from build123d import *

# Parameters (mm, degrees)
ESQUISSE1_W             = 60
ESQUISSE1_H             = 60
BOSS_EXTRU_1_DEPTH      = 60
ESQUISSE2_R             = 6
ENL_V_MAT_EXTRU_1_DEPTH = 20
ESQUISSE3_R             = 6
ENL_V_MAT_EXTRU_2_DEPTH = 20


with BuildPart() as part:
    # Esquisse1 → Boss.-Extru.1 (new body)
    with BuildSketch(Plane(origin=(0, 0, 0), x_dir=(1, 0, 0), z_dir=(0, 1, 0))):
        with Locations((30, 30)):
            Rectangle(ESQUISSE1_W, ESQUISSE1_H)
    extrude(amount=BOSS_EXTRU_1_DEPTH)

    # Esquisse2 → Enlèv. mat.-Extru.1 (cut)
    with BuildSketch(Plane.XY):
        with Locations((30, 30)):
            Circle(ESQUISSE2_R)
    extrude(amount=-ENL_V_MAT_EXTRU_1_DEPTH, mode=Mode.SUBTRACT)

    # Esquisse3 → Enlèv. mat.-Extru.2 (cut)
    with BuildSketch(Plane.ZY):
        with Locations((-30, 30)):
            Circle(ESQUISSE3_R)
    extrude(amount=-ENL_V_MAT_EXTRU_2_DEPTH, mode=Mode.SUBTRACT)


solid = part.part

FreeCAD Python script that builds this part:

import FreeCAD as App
import Part
import Sketcher
from FreeCAD import Vector

doc = App.newDocument("Part")
body = doc.addObject("PartDesign::Body", "Body")

sketch1 = body.newObject("Sketcher::SketchObject", "Sketch")
sketch1.AttachmentSupport = (doc.getObject("XZ_Plane"), [""])
sketch1.MapMode = "FlatFace"
sketch1.addGeometry([
    Part.LineSegment(Vector(0, -60, 0), Vector(0, 0, 0)),
    Part.LineSegment(Vector(0, 0, 0), Vector(60, 0, 0)),
    Part.LineSegment(Vector(60, 0, 0), Vector(60, -60, 0)),
    Part.LineSegment(Vector(60, -60, 0), Vector(0, -60, 0)),
], False)
sketch1.addConstraint([
    Sketcher.Constraint("Coincident", 0, 2, 1, 1),
    Sketcher.Constraint("Coincident", 1, 2, 2, 1),
    Sketcher.Constraint("Coincident", 2, 2, 3, 1),
    Sketcher.Constraint("Coincident", 3, 2, 0, 1),
    Sketcher.Constraint("Vertical", 0),
    Sketcher.Constraint("Horizontal", 1),
    Sketcher.Constraint("Vertical", 2),
    Sketcher.Constraint("Horizontal", 3),
    Sketcher.Constraint("Coincident", 0, 2, -1, 1),
    Sketcher.Constraint("Equal", 3, 0),
    Sketcher.Constraint("DistanceX", 1, 1, 1, 2, 60.0),
])
pad1 = body.newObject("PartDesign::Pad", "Pad")
pad1.Profile = sketch1
pad1.Length = 60
pad1.Reversed = True

sketch2 = body.newObject("Sketcher::SketchObject", "Sketch001")
sketch2.AttachmentSupport = (doc.getObject("XY_Plane"), [""])
sketch2.MapMode = "FlatFace"
sketch2.addGeometry(Part.Circle(Vector(30, 30, 0), Vector(0, 0, 1), 6), False)
sketch2.addConstraint([
    Sketcher.Constraint("Diameter", 0, 12.0),
    Sketcher.Constraint("DistanceX", -1, 1, 0, 3, 30.0),
    Sketcher.Constraint("DistanceY", -1, 1, 0, 3, 30.0),
])
pocket1 = body.newObject("PartDesign::Pocket", "Pocket")
pocket1.Profile = sketch2
pocket1.Length = 20

sketch3 = body.newObject("Sketcher::SketchObject", "Sketch002")
sketch3.AttachmentSupport = (doc.getObject("YZ_Plane"), [""])
sketch3.MapMode = "FlatFace"
sketch3.addGeometry(Part.Circle(Vector(30, -30, 0), Vector(0, 0, 1), 6), False)
sketch3.addConstraint([
    Sketcher.Constraint("Diameter", 0, 12.0),
    Sketcher.Constraint("DistanceX", -1, 1, 0, 3, 30.0),
    Sketcher.Constraint("DistanceY", 0, 3, -1, 1, 30.0),
])
pocket2 = body.newObject("PartDesign::Pocket", "Pocket001")
pocket2.Profile = sketch3
pocket2.Length = 20
pocket2.Reversed = True

doc.recompute()
